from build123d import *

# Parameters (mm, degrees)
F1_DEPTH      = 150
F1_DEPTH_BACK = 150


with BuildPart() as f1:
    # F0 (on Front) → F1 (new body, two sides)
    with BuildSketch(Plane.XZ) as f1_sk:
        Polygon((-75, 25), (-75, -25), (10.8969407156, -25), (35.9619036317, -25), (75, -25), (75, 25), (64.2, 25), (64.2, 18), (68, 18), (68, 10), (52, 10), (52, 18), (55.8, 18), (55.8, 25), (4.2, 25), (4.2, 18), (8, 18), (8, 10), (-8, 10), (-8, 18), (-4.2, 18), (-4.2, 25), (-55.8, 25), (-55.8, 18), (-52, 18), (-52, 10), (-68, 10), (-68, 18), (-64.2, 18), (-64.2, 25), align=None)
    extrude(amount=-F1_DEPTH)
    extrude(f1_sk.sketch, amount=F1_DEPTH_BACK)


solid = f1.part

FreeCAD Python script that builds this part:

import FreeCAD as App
import Part
import Sketcher
from FreeCAD import Vector
Q = App.Units.Quantity

doc = App.newDocument("Part")
params = doc.addObject("Spreadsheet::Sheet", "Params")
for row, (alias, value) in enumerate([
    ("sketch1_width", "150 mm"),
    ("sketch1_width2", "16 mm"),
    ("sketch1_height", "50 mm"),
    ("sketch1_height2", "7 mm"),
    ("sketch1_height3", "8 mm"),
    ("pad1_length", "150 mm"),
    ("pad1_length2", "150 mm"),
], start=1):
    params.set(f"A{row}", alias)
    params.set(f"B{row}", "=" + value)
    params.setAlias(f"B{row}", alias)

body = doc.addObject("PartDesign::Body", "Body")

# Sketch on XZ plane
sketch1 = doc.addObject("Sketcher::SketchObject", "Sketch")
body.addObject(sketch1)
sketch1.AttachmentSupport = (doc.XZ_Plane, [""])
sketch1.MapMode = "FlatFace"
sketch1.addGeometry(Part.LineSegment(Vector(-75, 25, 0), Vector(-75, -25, 0)), False)
sketch1.addGeometry(Part.LineSegment(Vector(-75, -25, 0), Vector(75, -25, 0)), False)
sketch1.addGeometry(Part.LineSegment(Vector(75, -25, 0), Vector(75, 25, 0)), False)
sketch1.addGeometry(Part.LineSegment(Vector(75, 25, 0), Vector(64.2, 25, 0)), False)
sketch1.addGeometry(Part.LineSegment(Vector(64.2, 25, 0), Vector(64.2, 18, 0)), False)
sketch1.addGeometry(Part.LineSegment(Vector(64.2, 18, 0), Vector(68, 18, 0)), False)
sketch1.addGeometry(Part.LineSegment(Vector(68, 18, 0), Vector(68, 10, 0)), False)
sketch1.addGeometry(Part.LineSegment(Vector(68, 10, 0), Vector(52, 10, 0)), False)
sketch1.addGeometry(Part.LineSegment(Vector(52, 10, 0), Vector(52, 18, 0)), False)
sketch1.addGeometry(Part.LineSegment(Vector(52, 18, 0), Vector(55.8, 18, 0)), False)
sketch1.addGeometry(Part.LineSegment(Vector(55.8, 18, 0), Vector(55.8, 25, 0)), False)
sketch1.addGeometry(Part.LineSegment(Vector(55.8, 25, 0), Vector(4.2, 25, 0)), False)
sketch1.addGeometry(Part.LineSegment(Vector(4.2, 25, 0), Vector(4.2, 18, 0)), False)
sketch1.addGeometry(Part.LineSegment(Vector(4.2, 18, 0), Vector(8, 18, 0)), False)
sketch1.addGeometry(Part.LineSegment(Vector(8, 18, 0), Vector(8, 10, 0)), False)
sketch1.addGeometry(Part.LineSegment(Vector(8, 10, 0), Vector(-8, 10, 0)), False)
sketch1.addGeometry(Part.LineSegment(Vector(-8, 10, 0), Vector(-8, 18, 0)), False)
sketch1.addGeometry(Part.LineSegment(Vector(-8, 18, 0), Vector(-4.2, 18, 0)), False)
sketch1.addGeometry(Part.LineSegment(Vector(-4.2, 18, 0), Vector(-4.2, 25, 0)), False)
sketch1.addGeometry(Part.LineSegment(Vector(-4.2, 25, 0), Vector(-55.8, 25, 0)), False)
sketch1.addGeometry(Part.LineSegment(Vector(-55.8, 25, 0), Vector(-55.8, 18, 0)), False)
sketch1.addGeometry(Part.LineSegment(Vector(-55.8, 18, 0), Vector(-52, 18, 0)), False)
sketch1.addGeometry(Part.LineSegment(Vector(-52, 18, 0), Vector(-52, 10, 0)), False)
sketch1.addGeometry(Part.LineSegment(Vector(-52, 10, 0), Vector(-68, 10, 0)), False)
sketch1.addGeometry(Part.LineSegment(Vector(-68, 10, 0), Vector(-68, 18, 0)), False)
sketch1.addGeometry(Part.LineSegment(Vector(-68, 18, 0), Vector(-64.2, 18, 0)), False)
sketch1.addGeometry(Part.LineSegment(Vector(-64.2, 18, 0), Vector(-64.2, 25, 0)), False)
sketch1.addGeometry(Part.LineSegment(Vector(-64.2, 25, 0), Vector(-75, 25, 0)), False)
sketch1.addConstraint(Sketcher.Constraint("Coincident", 0, 2, 1, 1))
sketch1.addConstraint(Sketcher.Constraint("Coincident", 1, 2, 2, 1))
sketch1.addConstraint(Sketcher.Constraint("Coincident", 2, 2, 3, 1))
sketch1.addConstraint(Sketcher.Constraint("Coincident", 3, 2, 4, 1))
sketch1.addConstraint(Sketcher.Constraint("Coincident", 4, 2, 5, 1))
sketch1.addConstraint(Sketcher.Constraint("Coincident", 5, 2, 6, 1))
sketch1.addConstraint(Sketcher.Constraint("Coincident", 6, 2, 7, 1))
sketch1.addConstraint(Sketcher.Constraint("Coincident", 7, 2, 8, 1))
sketch1.addConstraint(Sketcher.Constraint("Coincident", 8, 2, 9, 1))
sketch1.addConstraint(Sketcher.Constraint("Coincident", 9, 2, 10, 1))
sketch1.addConstraint(Sketcher.Constraint("Coincident", 10, 2, 11, 1))
sketch1.addConstraint(Sketcher.Constraint("Coincident", 11, 2, 12, 1))
sketch1.addConstraint(Sketcher.Constraint("Coincident", 12, 2, 13, 1))
sketch1.addConstraint(Sketcher.Constraint("Coincident", 13, 2, 14, 1))
sketch1.addConstraint(Sketcher.Constraint("Coincident", 14, 2, 15, 1))
sketch1.addConstraint(Sketcher.Constraint("Coincident", 15, 2, 16, 1))
sketch1.addConstraint(Sketcher.Constraint("Coincident", 16, 2, 17, 1))
sketch1.addConstraint(Sketcher.Constraint("Coincident", 17, 2, 18, 1))
sketch1.addConstraint(Sketcher.Constraint("Coincident", 18, 2, 19, 1))
sketch1.addConstraint(Sketcher.Constraint("Coincident", 19, 2, 20, 1))
sketch1.addConstraint(Sketcher.Constraint("Coincident", 20, 2, 21, 1))
sketch1.addConstraint(Sketcher.Constraint("Coincident", 21, 2, 22, 1))
sketch1.addConstraint(Sketcher.Constraint("Coincident", 22, 2, 23, 1))
sketch1.addConstraint(Sketcher.Constraint("Coincident", 23, 2, 24, 1))
sketch1.addConstraint(Sketcher.Constraint("Coincident", 24, 2, 25, 1))
sketch1.addConstraint(Sketcher.Constraint("Coincident", 25, 2, 26, 1))
sketch1.addConstraint(Sketcher.Constraint("Coincident", 26, 2, 27, 1))
sketch1.addConstraint(Sketcher.Constraint("Coincident", 27, 2, 0, 1))
sketch1.addConstraint(Sketcher.Constraint("Vertical", 0))
sketch1.addConstraint(Sketcher.Constraint("Horizontal", 1))
sketch1.addConstraint(Sketcher.Constraint("Vertical", 2))
sketch1.addConstraint(Sketcher.Constraint("Horizontal", 3))
sketch1.addConstraint(Sketcher.Constraint("Vertical", 4))
sketch1.addConstraint(Sketcher.Constraint("Horizontal", 5))
sketch1.addConstraint(Sketcher.Constraint("Vertical", 6))
sketch1.addConstraint(Sketcher.Constraint("Horizontal", 7))
sketch1.addConstraint(Sketcher.Constraint("Vertical", 8))
sketch1.addConstraint(Sketcher.Constraint("Horizontal", 9))
sketch1.addConstraint(Sketcher.Constraint("Vertical", 10))
sketch1.addConstraint(Sketcher.Constraint("Horizontal", 11))
sketch1.addConstraint(Sketcher.Constraint("Vertical", 12))
sketch1.addConstraint(Sketcher.Constraint("Horizontal", 13))
sketch1.addConstraint(Sketcher.Constraint("Vertical", 14))
sketch1.addConstraint(Sketcher.Constraint("Horizontal", 15))
sketch1.addConstraint(Sketcher.Constraint("Vertical", 16))
sketch1.addConstraint(Sketcher.Constraint("Horizontal", 17))
sketch1.addConstraint(Sketcher.Constraint("Vertical", 18))
sketch1.addConstraint(Sketcher.Constraint("Horizontal", 19))
sketch1.addConstraint(Sketcher.Constraint("Vertical", 20))
sketch1.addConstraint(Sketcher.Constraint("Horizontal", 21))
sketch1.addConstraint(Sketcher.Constraint("Vertical", 22))
sketch1.addConstraint(Sketcher.Constraint("Horizontal", 23))
sketch1.addConstraint(Sketcher.Constraint("Vertical", 24))
sketch1.addConstraint(Sketcher.Constraint("Horizontal", 25))
sketch1.addConstraint(Sketcher.Constraint("Vertical", 26))
sketch1.addConstraint(Sketcher.Constraint("Horizontal", 27))
sketch1.addConstraint(Sketcher.Constraint("Symmetric", 0, 2, 2, 2, -1, 1))
sketch1.addConstraint(Sketcher.Constraint("Symmetric", 13, 2, 16, 2, -2))
sketch1.addConstraint(Sketcher.Constraint("Symmetric", 11, 2, 18, 2, -2))
sketch1.addConstraint(Sketcher.Constraint("Symmetric", 9, 2, 20, 2, -2))
sketch1.addConstraint(Sketcher.Constraint("Symmetric", 7, 2, 22, 2, -2))
sketch1.addConstraint(Sketcher.Constraint("Symmetric", 5, 2, 24, 2, -2))
sketch1.addConstraint(Sketcher.Constraint("Symmetric", 3, 2, 26, 2, -2))
sketch1.addConstraint(Sketcher.Constraint("Horizontal", 5, 2, 8, 2))
sketch1.addConstraint(Sketcher.Constraint("Horizontal", 3, 2, 10, 2))
sketch1.addConstraint(Sketcher.Constraint("Horizontal", 9, 2, 12, 2))
sketch1.addConstraint(Sketcher.Constraint("Horizontal", 7, 2, 14, 2))
sketch1.addConstraint(Sketcher.Constraint("Equal", 5, 9))
sketch1.addConstraint(Sketcher.Constraint("Equal", 9, 13))
sketch1.addConstraint(Sketcher.Constraint("Equal", 7, 15))
sketch1.addConstraint(Sketcher.Constraint("DistanceX", 1, 1, 1, 2, Q("150 mm")))
sketch1.addConstraint(Sketcher.Constraint("DistanceX", 7, 2, 7, 1, Q("16 mm")))
sketch1.addConstraint(Sketcher.Constraint("DistanceY", 0, 2, 0, 1, Q("50 mm")))
sketch1.addConstraint(Sketcher.Constraint("DistanceY", 4, 2, 4, 1, Q("7 mm")))
sketch1.addConstraint(Sketcher.Constraint("DistanceY", 6, 2, 6, 1, Q("8 mm")))
sketch1.addConstraint(Sketcher.Constraint("DistanceX", 3, 2, 3, 1, Q("10.8 mm")))
sketch1.addConstraint(Sketcher.Constraint("DistanceX", 5, 1, 5, 2, Q("3.8 mm")))
sketch1.setExpression("Constraints[70]", "Params.sketch1_width")
sketch1.setExpression("Constraints[71]", "Params.sketch1_width2")
sketch1.setExpression("Constraints[72]", "Params.sketch1_height")
sketch1.setExpression("Constraints[73]", "Params.sketch1_height2")
sketch1.setExpression("Constraints[74]", "Params.sketch1_height3")
pad1 = doc.addObject("PartDesign::Pad", "Pad")
body.addObject(pad1)
pad1.Profile = sketch1
pad1.Type = "TwoLengths"
pad1.setExpression("Length", "Params.pad1_length")
pad1.setExpression("Length2", "Params.pad1_length2")
pad1.Reversed = True

doc.recompute()
